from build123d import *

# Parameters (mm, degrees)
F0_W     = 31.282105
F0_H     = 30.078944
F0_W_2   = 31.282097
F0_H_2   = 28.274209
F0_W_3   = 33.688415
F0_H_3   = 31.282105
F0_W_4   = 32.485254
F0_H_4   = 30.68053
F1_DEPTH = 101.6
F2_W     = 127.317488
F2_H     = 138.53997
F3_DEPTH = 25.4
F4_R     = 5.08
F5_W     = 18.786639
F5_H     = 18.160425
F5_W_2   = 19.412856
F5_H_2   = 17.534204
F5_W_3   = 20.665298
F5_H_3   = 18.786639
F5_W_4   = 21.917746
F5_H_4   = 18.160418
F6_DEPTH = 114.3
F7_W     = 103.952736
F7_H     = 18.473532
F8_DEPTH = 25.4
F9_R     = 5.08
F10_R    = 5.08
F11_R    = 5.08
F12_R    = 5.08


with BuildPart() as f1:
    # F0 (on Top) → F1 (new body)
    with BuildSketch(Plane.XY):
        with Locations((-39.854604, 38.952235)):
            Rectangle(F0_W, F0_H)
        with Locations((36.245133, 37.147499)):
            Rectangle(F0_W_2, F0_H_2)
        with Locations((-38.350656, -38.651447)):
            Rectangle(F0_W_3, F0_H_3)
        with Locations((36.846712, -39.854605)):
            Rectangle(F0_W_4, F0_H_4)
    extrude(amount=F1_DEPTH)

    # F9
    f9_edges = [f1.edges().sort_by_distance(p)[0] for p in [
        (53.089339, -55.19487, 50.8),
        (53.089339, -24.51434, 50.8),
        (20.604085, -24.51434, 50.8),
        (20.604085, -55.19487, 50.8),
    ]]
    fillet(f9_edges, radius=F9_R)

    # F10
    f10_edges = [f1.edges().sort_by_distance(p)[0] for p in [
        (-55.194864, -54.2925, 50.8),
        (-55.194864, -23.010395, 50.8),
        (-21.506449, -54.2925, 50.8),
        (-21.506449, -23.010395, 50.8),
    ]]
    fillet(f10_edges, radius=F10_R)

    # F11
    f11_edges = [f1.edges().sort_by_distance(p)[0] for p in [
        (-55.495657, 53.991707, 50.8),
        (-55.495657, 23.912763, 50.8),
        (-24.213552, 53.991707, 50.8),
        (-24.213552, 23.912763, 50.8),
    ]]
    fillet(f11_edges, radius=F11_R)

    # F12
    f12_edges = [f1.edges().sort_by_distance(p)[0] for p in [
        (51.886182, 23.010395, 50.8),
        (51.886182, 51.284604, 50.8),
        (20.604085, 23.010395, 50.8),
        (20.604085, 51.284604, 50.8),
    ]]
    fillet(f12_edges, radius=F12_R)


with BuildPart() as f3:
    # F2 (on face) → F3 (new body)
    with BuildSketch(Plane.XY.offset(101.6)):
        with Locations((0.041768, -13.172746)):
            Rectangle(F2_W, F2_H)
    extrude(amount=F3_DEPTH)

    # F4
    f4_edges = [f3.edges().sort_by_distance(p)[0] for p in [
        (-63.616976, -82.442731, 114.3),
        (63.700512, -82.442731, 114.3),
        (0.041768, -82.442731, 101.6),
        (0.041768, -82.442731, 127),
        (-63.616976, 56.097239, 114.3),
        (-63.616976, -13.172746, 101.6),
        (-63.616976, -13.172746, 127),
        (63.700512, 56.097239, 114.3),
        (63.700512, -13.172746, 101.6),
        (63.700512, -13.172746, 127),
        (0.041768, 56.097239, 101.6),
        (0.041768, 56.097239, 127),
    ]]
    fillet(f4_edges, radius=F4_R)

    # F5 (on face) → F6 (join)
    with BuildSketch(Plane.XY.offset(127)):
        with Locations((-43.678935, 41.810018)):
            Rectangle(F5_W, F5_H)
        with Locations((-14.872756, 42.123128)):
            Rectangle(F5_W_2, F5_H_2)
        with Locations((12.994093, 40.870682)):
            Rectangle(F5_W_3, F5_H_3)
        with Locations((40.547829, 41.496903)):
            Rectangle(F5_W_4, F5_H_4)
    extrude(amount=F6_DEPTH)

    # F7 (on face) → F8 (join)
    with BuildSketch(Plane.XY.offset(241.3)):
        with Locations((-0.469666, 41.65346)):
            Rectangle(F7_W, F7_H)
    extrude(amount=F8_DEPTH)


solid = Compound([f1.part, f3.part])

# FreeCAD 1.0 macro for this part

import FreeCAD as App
import Part
import Sketcher
Q = App.Units.Quantity


def edges_at(feature, points):
    """Names of the edges that pass closest to the given points."""
    edges = feature.Shape.Edges
    near = lambda p: min(range(len(edges)), key=lambda i: edges[i].distToShape(Part.Vertex(*p))[0])
    return sorted({f"Edge{near(p) + 1}" for p in points})


def add_polygon(sketch, points):
    """Adds a closed chain of lines whose ends are joined by coincident constraints."""
    first, n = sketch.GeometryCount, len(points)
    for a, b in zip(points, points[1:] + points[:1]):
        sketch.addGeometry(Part.LineSegment(App.Vector(*a, 0), App.Vector(*b, 0)), False)
    for i in range(n):
        sketch.addConstraint(Sketcher.Constraint("Coincident", first + i, 2, first + (i + 1) % n, 1))

doc = App.newDocument("Part")
body = doc.addObject("PartDesign::Body", "Body")
body.AllowCompound = True

sketch1 = body.newObject("Sketcher::SketchObject", "Sketch")
sketch1.AttachmentSupport = (doc.getObject("XY_Plane"), [""])
sketch1.MapMode = "FlatFace"
add_polygon(sketch1, [(-55, 54), (-55, 24), (-24, 24), (-24, 54)])
add_polygon(sketch1, [(21, 51), (21, 23), (52, 23), (52, 51)])
add_polygon(sketch1, [(-55, -23), (-55, -54), (-22, -54), (-22, -23)])
add_polygon(sketch1, [(21, -25), (21, -55), (53, -55), (53, -25)])
sketch1.addConstraint(Sketcher.Constraint("Vertical", 0))
sketch1.addConstraint(Sketcher.Constraint("Horizontal", 1))
sketch1.addConstraint(Sketcher.Constraint("Vertical", 2))
sketch1.addConstraint(Sketcher.Constraint("Horizontal", 3))
sketch1.addConstraint(Sketcher.Constraint("Vertical", 4))
sketch1.addConstraint(Sketcher.Constraint("Horizontal", 5))
sketch1.addConstraint(Sketcher.Constraint("Vertical", 6))
sketch1.addConstraint(Sketcher.Constraint("Horizontal", 7))
sketch1.addConstraint(Sketcher.Constraint("Vertical", 8))
sketch1.addConstraint(Sketcher.Constraint("Horizontal", 9))
sketch1.addConstraint(Sketcher.Constraint("Vertical", 10))
sketch1.addConstraint(Sketcher.Constraint("Horizontal", 11))
sketch1.addConstraint(Sketcher.Constraint("Vertical", 12))
sketch1.addConstraint(Sketcher.Constraint("Horizontal", 13))
sketch1.addConstraint(Sketcher.Constraint("Vertical", 14))
sketch1.addConstraint(Sketcher.Constraint("Horizontal", 15))
sketch1.addConstraint(Sketcher.Constraint("Vertical", 7, 2, 12, 2))
sketch1.addConstraint(Sketcher.Constraint("Equal", 3, 8))
sketch1.addConstraint(Sketcher.Constraint("DistanceY", 8, 2, -1, 1, Q("2.1375 in")))
sketch1.addConstraint(Sketcher.Constraint("DistanceY", 4, 2, 4, 1, 28.274209))
sketch1.addConstraint(Sketcher.Constraint("DistanceY", 12, 2, 12, 1, 30.68053))
sketch1.addConstraint(Sketcher.Constraint("DistanceX", 1, 1, 1, 2, 31.282105))
sketch1.addConstraint(Sketcher.Constraint("DistanceX", 5, 1, 5, 2, 31.282097))
sketch1.addConstraint(Sketcher.Constraint("DistanceX", 9, 1, 9, 2, 33.688415))
sketch1.addConstraint(Sketcher.Constraint("DistanceX", 13, 1, 13, 2, 32.485254))
sketch1.addConstraint(Sketcher.Constraint("DistanceY", 0, 2, 0, 1, 30.078944))
sketch1.addConstraint(Sketcher.Constraint("DistanceX", 1, 2, -1, 1, 24.213552))
sketch1.addConstraint(Sketcher.Constraint("DistanceX", -1, 1, 5, 2, 51.886181))
sketch1.addConstraint(Sketcher.Constraint("DistanceX", 9, 2, -1, 1, 21.506449))
sketch1.addConstraint(Sketcher.Constraint("DistanceY", 12, 2, -1, 1, 55.19487))
sketch1.addConstraint(Sketcher.Constraint("DistanceY", 4, 2, 1, 2, 0.902369))
sketch1.addConstraint(Sketcher.Constraint("DistanceY", 10, 2, 4, 2, 46.020789))
pad1 = body.newObject("PartDesign::Pad", "Pad")
pad1.Profile = sketch1
pad1.Length = Q("4 in")
doc.recompute()

fillet = body.newObject("PartDesign::Fillet", "Fillet")
fillet.Base = (pad1, edges_at(pad1, [
    (53.089, -55.195, 50.8),
    (53.089, -24.514, 50.8),
    (20.604, -24.514, 50.8),
    (20.604, -55.195, 50.8),
]))
fillet.Radius = Q("0.2 in")
doc.recompute()

fillet2 = body.newObject("PartDesign::Fillet", "Fillet001")
fillet2.Base = (fillet, edges_at(fillet, [
    (-55.195, -54.292, 50.8),
    (-55.195, -23.01, 50.8),
    (-21.506, -54.292, 50.8),
    (-21.506, -23.01, 50.8),
]))
fillet2.Radius = Q("0.2 in")
doc.recompute()

fillet3 = body.newObject("PartDesign::Fillet", "Fillet002")
fillet3.Base = (fillet2, edges_at(fillet2, [
    (-55.496, 53.992, 50.8),
    (-55.496, 23.913, 50.8),
    (-24.214, 53.992, 50.8),
    (-24.214, 23.913, 50.8),
]))
fillet3.Radius = Q("0.2 in")
doc.recompute()

fillet4 = body.newObject("PartDesign::Fillet", "Fillet003")
fillet4.Base = (fillet3, edges_at(fillet3, [
    (51.886, 23.01, 50.8),
    (51.886, 51.285, 50.8),
    (20.604, 23.01, 50.8),
    (20.604, 51.285, 50.8),
]))
fillet4.Radius = Q("0.2 in")
body2 = doc.addObject("PartDesign::Body", "Body001")

sketch2 = body2.newObject("Sketcher::SketchObject", "Sketch001")
sketch2.AttachmentSupport = (doc.getObject("XY_Plane001"), [""])
sketch2.MapMode = "FlatFace"
sketch2.AttachmentOffset = App.Placement(App.Vector(0, 0, 4 * 25.4), App.Rotation())
add_polygon(sketch2, [(-64, 56), (-64, -82), (64, -82), (64, 56)])
sketch2.addConstraint(Sketcher.Constraint("Vertical", 0))
sketch2.addConstraint(Sketcher.Constraint("Horizontal", 1))
sketch2.addConstraint(Sketcher.Constraint("Vertical", 2))
sketch2.addConstraint(Sketcher.Constraint("Horizontal", 3))
sketch2.addConstraint(Sketcher.Constraint("DistanceY", 0, 2, 0, 1, 138.53997))
sketch2.addConstraint(Sketcher.Constraint("DistanceX", 1, 1, 1, 2, 127.317488))
sketch2.addConstraint(Sketcher.Constraint("DistanceY", 0, 2, -1, 1, 82.442731))
sketch2.addConstraint(Sketcher.Constraint("DistanceX", 0, 2, -1, 1, 63.616976))
pad2 = body2.newObject("PartDesign::Pad", "Pad001")
pad2.Profile = sketch2
pad2.Length = Q("1 in")
doc.recompute()

fillet5 = body2.newObject("PartDesign::Fillet", "Fillet004")
fillet5.Base = (pad2, ["Edge1"])
fillet5.UseAllEdges = True
fillet5.Radius = Q("0.2 in")

sketch3 = body2.newObject("Sketcher::SketchObject", "Sketch002")
sketch3.AttachmentSupport = (doc.getObject("XY_Plane001"), [""])
sketch3.MapMode = "FlatFace"
sketch3.AttachmentOffset = App.Placement(App.Vector(0, 0, 5 * 25.4), App.Rotation())
add_polygon(sketch3, [(-53, 51), (-53, 33), (-34, 33), (-34, 51)])
add_polygon(sketch3, [(-25, 51), (-25, 33), (-5, 33), (-5, 51)])
add_polygon(sketch3, [(3, 50), (3, 31), (23, 31), (23, 50)])
add_polygon(sketch3, [(30, 51), (30, 32), (52, 32), (52, 51)])
sketch3.addConstraint(Sketcher.Constraint("Vertical", 0))
sketch3.addConstraint(Sketcher.Constraint("Horizontal", 1))
sketch3.addConstraint(Sketcher.Constraint("Vertical", 2))
sketch3.addConstraint(Sketcher.Constraint("Horizontal", 3))
sketch3.addConstraint(Sketcher.Constraint("Vertical", 4))
sketch3.addConstraint(Sketcher.Constraint("Horizontal", 5))
sketch3.addConstraint(Sketcher.Constraint("Vertical", 6))
sketch3.addConstraint(Sketcher.Constraint("Horizontal", 7))
sketch3.addConstraint(Sketcher.Constraint("Vertical", 8))
sketch3.addConstraint(Sketcher.Constraint("Horizontal", 9))
sketch3.addConstraint(Sketcher.Constraint("Vertical", 10))
sketch3.addConstraint(Sketcher.Constraint("Horizontal", 11))
sketch3.addConstraint(Sketcher.Constraint("Vertical", 12))
sketch3.addConstraint(Sketcher.Constraint("Horizontal", 13))
sketch3.addConstraint(Sketcher.Constraint("Vertical", 14))
sketch3.addConstraint(Sketcher.Constraint("Horizontal", 15))
sketch3.addConstraint(Sketcher.Constraint("Horizontal", 3, 2, 6, 2))
sketch3.addConstraint(Sketcher.Constraint("Equal", 3, 8))
sketch3.addConstraint(Sketcher.Constraint("DistanceX", 9, 1, 9, 2, 20.665298))
sketch3.addConstraint(Sketcher.Constraint("DistanceX", 1, 1, 1, 2, 18.786639))
sketch3.addConstraint(Sketcher.Constraint("DistanceY", 12, 2, 12, 1, 18.160418))
sketch3.addConstraint(Sketcher.Constraint("DistanceY", -1, 1, 10, 2, 50.264001))
sketch3.addConstraint(Sketcher.Constraint("DistanceX", -1, 1, 13, 2, 51.506702))
sketch3.addConstraint(Sketcher.Constraint("DistanceX", 5, 1, 5, 2, 19.412856))
sketch3.addConstraint(Sketcher.Constraint("DistanceX", 13, 1, 13, 2, 21.917746))
sketch3.addConstraint(Sketcher.Constraint("DistanceY", 0, 2, 0, 1, 18.160425))
sketch3.addConstraint(Sketcher.Constraint("DistanceY", 4, 2, 4, 1, 17.534204))
sketch3.addConstraint(Sketcher.Constraint("DistanceY", -1, 1, 2, 2, 50.890231))
sketch3.addConstraint(Sketcher.Constraint("DistanceX", -1, 1, 9, 2, 23.326742))
sketch3.addConstraint(Sketcher.Constraint("DistanceX", 1, 2, 4, 2, 9.706431))
sketch3.addConstraint(Sketcher.Constraint("DistanceX", 5, 2, 8, 2, 7.827772))
sketch3.addConstraint(Sketcher.Constraint("DistanceY", 9, 2, 12, 2, 0.939331))
pad3 = body2.newObject("PartDesign::Pad", "Pad002")
pad3.Profile = sketch3
pad3.Length = Q("4.5 in")

sketch4 = body2.newObject("Sketcher::SketchObject", "Sketch003")
sketch4.AttachmentSupport = (doc.getObject("XY_Plane001"), [""])
sketch4.MapMode = "FlatFace"
sketch4.AttachmentOffset = App.Placement(App.Vector(0, 0, 9.5 * 25.4), App.Rotation())
add_polygon(sketch4, [(-52, 51), (-52, 32), (52, 32), (52, 51)])
sketch4.addConstraint(Sketcher.Constraint("Vertical", 0))
sketch4.addConstraint(Sketcher.Constraint("Horizontal", 1))
sketch4.addConstraint(Sketcher.Constraint("Vertical", 2))
sketch4.addConstraint(Sketcher.Constraint("Horizontal", 3))
sketch4.addConstraint(Sketcher.Constraint("DistanceY", 0, 2, 0, 1, 18.473532))
sketch4.addConstraint(Sketcher.Constraint("DistanceX", -1, 1, 1, 2, 51.506702))
sketch4.addConstraint(Sketcher.Constraint("DistanceX", 1, 1, 1, 2, 103.952736))
sketch4.addConstraint(Sketcher.Constraint("DistanceY", -1, 1, 0, 2, 32.416694))
pad4 = body2.newObject("PartDesign::Pad", "Pad003")
pad4.Profile = sketch4
pad4.Length = Q("1 in")

doc.recompute()
